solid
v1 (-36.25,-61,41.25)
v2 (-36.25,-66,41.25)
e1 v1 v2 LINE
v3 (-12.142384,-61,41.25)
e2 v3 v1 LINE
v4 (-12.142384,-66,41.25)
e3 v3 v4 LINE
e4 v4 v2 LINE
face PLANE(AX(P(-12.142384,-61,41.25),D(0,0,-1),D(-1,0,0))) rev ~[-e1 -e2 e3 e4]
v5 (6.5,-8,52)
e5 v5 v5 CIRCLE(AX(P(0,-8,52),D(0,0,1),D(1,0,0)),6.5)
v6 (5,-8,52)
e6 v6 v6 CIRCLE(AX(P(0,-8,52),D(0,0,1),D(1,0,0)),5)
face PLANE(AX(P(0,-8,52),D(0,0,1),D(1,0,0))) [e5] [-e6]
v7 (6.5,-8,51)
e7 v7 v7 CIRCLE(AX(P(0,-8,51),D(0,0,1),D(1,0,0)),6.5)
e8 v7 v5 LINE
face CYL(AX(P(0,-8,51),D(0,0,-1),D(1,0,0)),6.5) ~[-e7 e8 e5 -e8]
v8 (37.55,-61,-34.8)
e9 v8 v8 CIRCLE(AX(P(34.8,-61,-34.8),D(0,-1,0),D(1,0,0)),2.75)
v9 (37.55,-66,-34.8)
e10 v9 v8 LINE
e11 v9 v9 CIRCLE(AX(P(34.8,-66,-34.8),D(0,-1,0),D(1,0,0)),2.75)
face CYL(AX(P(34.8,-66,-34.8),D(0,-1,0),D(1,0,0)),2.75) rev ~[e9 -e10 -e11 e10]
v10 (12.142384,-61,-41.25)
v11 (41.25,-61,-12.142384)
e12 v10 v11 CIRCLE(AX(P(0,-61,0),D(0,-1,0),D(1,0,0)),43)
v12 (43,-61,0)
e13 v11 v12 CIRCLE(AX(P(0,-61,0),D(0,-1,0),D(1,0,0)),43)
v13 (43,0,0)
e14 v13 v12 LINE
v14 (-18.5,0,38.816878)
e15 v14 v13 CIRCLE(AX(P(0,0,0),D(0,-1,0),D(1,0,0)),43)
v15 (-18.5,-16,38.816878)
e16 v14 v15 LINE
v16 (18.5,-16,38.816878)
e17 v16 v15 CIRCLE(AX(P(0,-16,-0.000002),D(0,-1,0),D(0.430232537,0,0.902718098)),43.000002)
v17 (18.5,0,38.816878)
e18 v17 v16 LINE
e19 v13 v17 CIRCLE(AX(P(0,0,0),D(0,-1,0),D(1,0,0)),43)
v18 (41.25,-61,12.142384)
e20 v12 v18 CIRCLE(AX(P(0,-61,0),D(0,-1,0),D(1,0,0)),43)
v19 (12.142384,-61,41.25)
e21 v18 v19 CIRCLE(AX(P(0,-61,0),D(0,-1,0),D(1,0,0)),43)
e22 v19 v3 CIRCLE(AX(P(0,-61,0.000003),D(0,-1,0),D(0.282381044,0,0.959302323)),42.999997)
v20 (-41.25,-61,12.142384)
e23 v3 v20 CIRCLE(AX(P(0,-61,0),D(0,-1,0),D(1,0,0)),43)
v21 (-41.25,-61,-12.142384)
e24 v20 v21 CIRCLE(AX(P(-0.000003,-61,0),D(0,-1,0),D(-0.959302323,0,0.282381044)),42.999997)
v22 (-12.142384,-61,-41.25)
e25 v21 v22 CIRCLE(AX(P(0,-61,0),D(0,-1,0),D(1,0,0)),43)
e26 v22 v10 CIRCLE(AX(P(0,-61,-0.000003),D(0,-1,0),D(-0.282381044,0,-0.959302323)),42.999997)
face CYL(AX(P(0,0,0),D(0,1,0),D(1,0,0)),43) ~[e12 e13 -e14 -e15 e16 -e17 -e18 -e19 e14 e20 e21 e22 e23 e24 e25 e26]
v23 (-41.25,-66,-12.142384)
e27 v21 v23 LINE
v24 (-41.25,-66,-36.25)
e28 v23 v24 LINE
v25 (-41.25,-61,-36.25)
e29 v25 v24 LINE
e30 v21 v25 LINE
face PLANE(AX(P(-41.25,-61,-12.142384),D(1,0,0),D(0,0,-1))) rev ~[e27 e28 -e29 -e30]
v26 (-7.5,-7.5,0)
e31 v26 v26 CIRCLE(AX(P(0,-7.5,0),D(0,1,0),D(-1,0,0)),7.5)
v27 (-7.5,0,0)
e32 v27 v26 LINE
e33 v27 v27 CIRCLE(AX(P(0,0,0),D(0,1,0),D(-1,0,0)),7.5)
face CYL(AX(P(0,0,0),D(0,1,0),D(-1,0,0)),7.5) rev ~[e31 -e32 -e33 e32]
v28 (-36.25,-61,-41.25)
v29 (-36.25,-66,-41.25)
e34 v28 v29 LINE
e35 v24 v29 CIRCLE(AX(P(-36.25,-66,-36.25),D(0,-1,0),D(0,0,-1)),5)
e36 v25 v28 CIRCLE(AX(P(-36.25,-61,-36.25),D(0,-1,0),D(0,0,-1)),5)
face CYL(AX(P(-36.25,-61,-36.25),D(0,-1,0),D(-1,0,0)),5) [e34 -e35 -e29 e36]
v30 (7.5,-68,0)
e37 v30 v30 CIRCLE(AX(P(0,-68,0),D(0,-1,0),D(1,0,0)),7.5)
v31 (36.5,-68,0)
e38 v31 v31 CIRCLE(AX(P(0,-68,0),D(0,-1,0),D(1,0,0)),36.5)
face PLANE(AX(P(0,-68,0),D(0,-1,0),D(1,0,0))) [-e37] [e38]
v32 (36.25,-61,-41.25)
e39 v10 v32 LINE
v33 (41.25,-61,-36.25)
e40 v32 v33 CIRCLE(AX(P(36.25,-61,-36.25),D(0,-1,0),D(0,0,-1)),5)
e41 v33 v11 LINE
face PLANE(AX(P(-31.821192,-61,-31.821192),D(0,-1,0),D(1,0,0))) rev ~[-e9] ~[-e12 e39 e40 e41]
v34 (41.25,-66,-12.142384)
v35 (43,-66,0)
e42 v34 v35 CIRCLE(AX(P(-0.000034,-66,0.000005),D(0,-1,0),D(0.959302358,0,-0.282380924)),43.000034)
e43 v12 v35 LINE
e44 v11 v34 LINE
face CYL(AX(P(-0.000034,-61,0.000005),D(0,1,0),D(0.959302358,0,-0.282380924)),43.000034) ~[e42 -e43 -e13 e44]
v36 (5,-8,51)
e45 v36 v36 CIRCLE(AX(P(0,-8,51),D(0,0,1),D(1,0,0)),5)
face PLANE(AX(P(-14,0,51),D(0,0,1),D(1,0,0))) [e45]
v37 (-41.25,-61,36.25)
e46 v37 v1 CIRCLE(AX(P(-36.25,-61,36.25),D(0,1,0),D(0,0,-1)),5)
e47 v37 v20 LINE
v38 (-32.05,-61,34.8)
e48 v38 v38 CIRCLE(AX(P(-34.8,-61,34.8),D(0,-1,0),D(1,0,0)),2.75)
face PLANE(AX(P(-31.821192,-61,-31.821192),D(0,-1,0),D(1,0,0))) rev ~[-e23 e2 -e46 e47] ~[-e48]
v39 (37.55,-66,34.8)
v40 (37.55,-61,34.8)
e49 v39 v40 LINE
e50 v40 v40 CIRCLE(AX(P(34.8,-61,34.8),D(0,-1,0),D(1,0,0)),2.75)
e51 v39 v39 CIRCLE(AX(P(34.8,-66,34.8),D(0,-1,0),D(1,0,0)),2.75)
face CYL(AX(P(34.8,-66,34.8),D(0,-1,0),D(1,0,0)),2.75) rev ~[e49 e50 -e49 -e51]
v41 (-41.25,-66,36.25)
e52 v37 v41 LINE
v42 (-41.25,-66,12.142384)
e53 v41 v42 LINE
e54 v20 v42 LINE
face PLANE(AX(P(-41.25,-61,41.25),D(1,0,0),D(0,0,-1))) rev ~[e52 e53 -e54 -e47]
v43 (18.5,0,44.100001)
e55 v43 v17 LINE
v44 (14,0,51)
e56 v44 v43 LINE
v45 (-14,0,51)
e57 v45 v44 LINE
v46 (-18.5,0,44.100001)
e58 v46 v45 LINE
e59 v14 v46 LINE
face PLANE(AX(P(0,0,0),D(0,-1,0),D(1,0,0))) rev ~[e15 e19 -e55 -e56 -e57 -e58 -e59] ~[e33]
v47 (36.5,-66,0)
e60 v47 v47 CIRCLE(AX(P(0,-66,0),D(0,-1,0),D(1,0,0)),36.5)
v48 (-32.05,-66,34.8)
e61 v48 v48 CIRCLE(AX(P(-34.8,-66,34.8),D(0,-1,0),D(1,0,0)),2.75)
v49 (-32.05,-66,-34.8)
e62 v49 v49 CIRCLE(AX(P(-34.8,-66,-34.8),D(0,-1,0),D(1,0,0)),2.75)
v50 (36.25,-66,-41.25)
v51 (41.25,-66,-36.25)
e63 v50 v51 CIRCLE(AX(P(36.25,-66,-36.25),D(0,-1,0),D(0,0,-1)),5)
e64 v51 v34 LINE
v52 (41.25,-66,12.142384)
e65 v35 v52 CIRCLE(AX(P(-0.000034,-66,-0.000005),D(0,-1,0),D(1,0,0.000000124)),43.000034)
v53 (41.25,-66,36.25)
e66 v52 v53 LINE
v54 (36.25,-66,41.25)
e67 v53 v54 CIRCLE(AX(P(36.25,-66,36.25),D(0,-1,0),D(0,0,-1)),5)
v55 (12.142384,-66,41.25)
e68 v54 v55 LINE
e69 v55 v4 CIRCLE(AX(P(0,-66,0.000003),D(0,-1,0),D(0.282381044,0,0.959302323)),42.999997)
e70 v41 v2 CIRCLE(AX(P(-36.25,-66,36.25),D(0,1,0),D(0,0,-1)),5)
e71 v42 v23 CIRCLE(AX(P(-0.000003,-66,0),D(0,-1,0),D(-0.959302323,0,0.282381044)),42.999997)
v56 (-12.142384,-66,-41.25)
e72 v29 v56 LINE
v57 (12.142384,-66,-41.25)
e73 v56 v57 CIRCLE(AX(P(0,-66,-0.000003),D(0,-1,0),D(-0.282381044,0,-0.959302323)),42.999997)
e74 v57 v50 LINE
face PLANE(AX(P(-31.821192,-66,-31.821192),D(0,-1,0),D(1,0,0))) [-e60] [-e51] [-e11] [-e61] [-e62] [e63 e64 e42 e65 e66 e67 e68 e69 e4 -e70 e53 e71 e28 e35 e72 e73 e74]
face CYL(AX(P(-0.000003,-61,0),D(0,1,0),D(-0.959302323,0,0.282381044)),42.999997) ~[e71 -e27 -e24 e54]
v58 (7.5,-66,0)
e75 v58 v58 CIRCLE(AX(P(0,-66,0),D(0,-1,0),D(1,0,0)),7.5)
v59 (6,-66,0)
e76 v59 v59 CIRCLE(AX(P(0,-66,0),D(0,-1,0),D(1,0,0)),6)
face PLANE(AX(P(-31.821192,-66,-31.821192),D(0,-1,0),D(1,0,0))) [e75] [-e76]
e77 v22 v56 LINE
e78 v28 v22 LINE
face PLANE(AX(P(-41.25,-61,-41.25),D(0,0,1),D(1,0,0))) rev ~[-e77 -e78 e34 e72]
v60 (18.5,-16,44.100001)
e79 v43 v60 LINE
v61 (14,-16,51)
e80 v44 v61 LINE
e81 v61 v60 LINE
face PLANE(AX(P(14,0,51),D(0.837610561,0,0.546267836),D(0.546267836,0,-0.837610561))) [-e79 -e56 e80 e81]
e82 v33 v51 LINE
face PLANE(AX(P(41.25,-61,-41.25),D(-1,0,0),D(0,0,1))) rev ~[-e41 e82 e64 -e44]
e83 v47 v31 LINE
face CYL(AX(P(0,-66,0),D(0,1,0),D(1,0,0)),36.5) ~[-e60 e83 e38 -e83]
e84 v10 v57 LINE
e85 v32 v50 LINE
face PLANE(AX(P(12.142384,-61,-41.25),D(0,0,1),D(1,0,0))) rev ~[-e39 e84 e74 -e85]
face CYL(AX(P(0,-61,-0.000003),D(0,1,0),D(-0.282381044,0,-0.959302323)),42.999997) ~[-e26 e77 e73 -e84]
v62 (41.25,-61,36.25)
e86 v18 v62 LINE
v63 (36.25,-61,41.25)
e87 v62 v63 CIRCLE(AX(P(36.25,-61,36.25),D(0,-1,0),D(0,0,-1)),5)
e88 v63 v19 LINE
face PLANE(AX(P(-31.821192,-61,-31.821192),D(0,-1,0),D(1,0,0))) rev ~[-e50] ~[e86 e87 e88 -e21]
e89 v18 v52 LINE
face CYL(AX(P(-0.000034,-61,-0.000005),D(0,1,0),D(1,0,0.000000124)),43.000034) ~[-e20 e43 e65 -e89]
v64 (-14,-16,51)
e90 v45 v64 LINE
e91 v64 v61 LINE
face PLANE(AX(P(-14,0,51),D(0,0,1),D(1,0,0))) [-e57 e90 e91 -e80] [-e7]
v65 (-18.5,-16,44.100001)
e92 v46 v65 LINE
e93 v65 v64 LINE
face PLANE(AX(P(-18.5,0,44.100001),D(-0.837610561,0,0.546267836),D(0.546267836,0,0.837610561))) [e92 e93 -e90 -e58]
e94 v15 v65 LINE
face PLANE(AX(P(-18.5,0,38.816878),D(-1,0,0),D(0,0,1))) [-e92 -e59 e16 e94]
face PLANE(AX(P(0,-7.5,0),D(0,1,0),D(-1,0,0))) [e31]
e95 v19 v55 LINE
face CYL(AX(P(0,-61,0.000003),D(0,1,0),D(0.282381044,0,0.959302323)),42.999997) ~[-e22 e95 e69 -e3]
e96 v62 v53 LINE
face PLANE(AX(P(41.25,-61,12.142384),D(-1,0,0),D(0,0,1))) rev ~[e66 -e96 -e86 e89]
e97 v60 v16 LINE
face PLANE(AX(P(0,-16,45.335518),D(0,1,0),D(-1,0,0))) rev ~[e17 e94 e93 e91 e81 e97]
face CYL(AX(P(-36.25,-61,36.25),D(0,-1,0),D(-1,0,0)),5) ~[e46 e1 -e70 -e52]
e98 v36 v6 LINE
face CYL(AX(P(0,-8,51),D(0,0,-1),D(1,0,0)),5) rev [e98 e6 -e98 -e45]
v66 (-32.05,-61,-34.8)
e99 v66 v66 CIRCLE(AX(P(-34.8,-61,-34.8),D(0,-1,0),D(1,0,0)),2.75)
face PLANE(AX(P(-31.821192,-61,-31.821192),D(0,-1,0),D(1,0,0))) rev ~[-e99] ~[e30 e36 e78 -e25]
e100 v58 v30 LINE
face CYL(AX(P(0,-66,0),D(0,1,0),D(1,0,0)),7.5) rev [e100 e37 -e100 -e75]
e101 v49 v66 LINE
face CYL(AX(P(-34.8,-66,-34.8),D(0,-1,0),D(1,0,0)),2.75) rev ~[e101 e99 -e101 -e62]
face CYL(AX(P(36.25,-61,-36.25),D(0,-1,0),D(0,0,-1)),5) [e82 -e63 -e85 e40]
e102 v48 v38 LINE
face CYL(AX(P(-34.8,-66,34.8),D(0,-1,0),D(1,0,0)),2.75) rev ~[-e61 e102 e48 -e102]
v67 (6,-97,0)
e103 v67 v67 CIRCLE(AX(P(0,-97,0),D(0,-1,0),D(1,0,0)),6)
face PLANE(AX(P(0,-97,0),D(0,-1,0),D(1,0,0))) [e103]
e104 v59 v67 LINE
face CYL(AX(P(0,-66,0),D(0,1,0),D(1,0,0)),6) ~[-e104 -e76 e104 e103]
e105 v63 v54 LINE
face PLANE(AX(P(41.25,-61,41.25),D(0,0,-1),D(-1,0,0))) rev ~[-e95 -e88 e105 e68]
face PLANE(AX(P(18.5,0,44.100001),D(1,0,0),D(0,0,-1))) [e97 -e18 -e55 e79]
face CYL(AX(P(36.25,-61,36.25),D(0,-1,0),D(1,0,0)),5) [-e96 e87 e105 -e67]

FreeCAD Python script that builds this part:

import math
import FreeCAD as App
import Part
import Sketcher
Q = App.Units.Quantity


def edges_at(feature, points):
    """Names of the edges that pass closest to the given points."""
    edges = feature.Shape.Edges
    near = lambda p: min(range(len(edges)), key=lambda i: edges[i].distToShape(Part.Vertex(*p))[0])
    return sorted({f"Edge{near(p) + 1}" for p in points})

doc = App.newDocument("Part")
body = doc.addObject("PartDesign::Body", "Body")

sketch1 = body.newObject("Sketcher::SketchObject", "Sketch")
sketch1.AttachmentSupport = (doc.getObject("XZ_Plane"), [""])
sketch1.MapMode = "FlatFace"
sketch1.addGeometry(Part.Circle(App.Vector(0, 0, 0), App.Vector(0, 0, 1), 43), False)
sketch1.addConstraint(Sketcher.Constraint("Coincident", 0, 3, -1, 1))
sketch1.addConstraint(Sketcher.Constraint("Diameter", 0, Q("86 mm")))
pad1 = body.newObject("PartDesign::Pad", "Pad")
pad1.Profile = sketch1
pad1.Length = 61

sketch2 = body.newObject("Sketcher::SketchObject", "Sketch001")
sketch2.AttachmentSupport = (doc.getObject("XZ_Plane"), [""])
sketch2.MapMode = "FlatFace"
sketch2.addGeometry(Part.Circle(App.Vector(0, 0, 0), App.Vector(0, 0, 1), 8), False)
sketch2.addConstraint(Sketcher.Constraint("Coincident", 0, 3, -1, 1))
sketch2.addConstraint(Sketcher.Constraint("Diameter", 0, Q("15 mm")))
pocket1 = body.newObject("PartDesign::Pocket", "Pocket")
pocket1.Profile = sketch2
pocket1.Length = 7.5
pocket1.Reversed = True

sketch3 = body.newObject("Sketcher::SketchObject", "Sketch002")
sketch3.AttachmentSupport = (doc.getObject("XZ_Plane"), [""])
sketch3.MapMode = "FlatFace"
sketch3.AttachmentOffset = App.Placement(App.Vector(0, 0, 61), App.Rotation())
sketch3.addGeometry(Part.LineSegment(App.Vector(-41.25, -12.142384, 0), App.Vector(-41.25, -41.25, 0)), False)
sketch3.addGeometry(Part.LineSegment(App.Vector(-41.25, -41.25, 0), App.Vector(-12.142384, -41.25, 0)), False)
sketch3.addGeometry(Part.ArcOfCircle(Part.Circle(App.Vector(0, -0.000003, 0), App.Vector(0, 0, 1), 42.999997), math.radians(-106.402364), math.radians(-73.597636)), False)
sketch3.addGeometry(Part.LineSegment(App.Vector(12.142384, -41.25, 0), App.Vector(41.25, -41.25, 0)), False)
sketch3.addGeometry(Part.LineSegment(App.Vector(41.25, -41.25, 0), App.Vector(41.25, -12.142384, 0)), False)
sketch3.addGeometry(Part.ArcOfCircle(Part.Circle(App.Vector(-0.000034, 0.000005, 0), App.Vector(0, 0, 1), 43.000034), math.radians(-16.402357), math.radians(-0.000007)), False)
sketch3.addGeometry(Part.ArcOfCircle(Part.Circle(App.Vector(-0.000034, -0.000005, 0), App.Vector(0, 0, 1), 43.000034), math.radians(0.000007), math.radians(16.402357)), False)
sketch3.addGeometry(Part.LineSegment(App.Vector(41.25, 12.142384, 0), App.Vector(41.25, 41.25, 0)), False)
sketch3.addGeometry(Part.LineSegment(App.Vector(41.25, 41.25, 0), App.Vector(12.142384, 41.25, 0)), False)
sketch3.addGeometry(Part.ArcOfCircle(Part.Circle(App.Vector(0, 0.000003, 0), App.Vector(0, 0, 1), 42.999997), math.radians(73.597636), math.radians(106.402364)), False)
sketch3.addGeometry(Part.LineSegment(App.Vector(-12.142384, 41.25, 0), App.Vector(-41.25, 41.25, 0)), False)
sketch3.addGeometry(Part.LineSegment(App.Vector(-41.25, 41.25, 0), App.Vector(-41.25, 12.142384, 0)), False)
sketch3.addGeometry(Part.ArcOfCircle(Part.Circle(App.Vector(-0.000003, 0, 0), App.Vector(0, 0, 1), 42.999997), math.radians(163.597636), math.radians(196.402364)), False)
sketch3.addConstraint(Sketcher.Constraint("Coincident", 0, 2, 1, 1))
sketch3.addConstraint(Sketcher.Constraint("Coincident", 1, 2, 2, 1))
sketch3.addConstraint(Sketcher.Constraint("Coincident", 2, 2, 3, 1))
sketch3.addConstraint(Sketcher.Constraint("Coincident", 3, 2, 4, 1))
sketch3.addConstraint(Sketcher.Constraint("Coincident", 4, 2, 5, 1))
sketch3.addConstraint(Sketcher.Constraint("Coincident", 5, 2, 6, 1))
sketch3.addConstraint(Sketcher.Constraint("Coincident", 6, 2, 7, 1))
sketch3.addConstraint(Sketcher.Constraint("Coincident", 7, 2, 8, 1))
sketch3.addConstraint(Sketcher.Constraint("Coincident", 8, 2, 9, 1))
sketch3.addConstraint(Sketcher.Constraint("Coincident", 9, 2, 10, 1))
sketch3.addConstraint(Sketcher.Constraint("Coincident", 10, 2, 11, 1))
sketch3.addConstraint(Sketcher.Constraint("Coincident", 11, 2, 12, 1))
sketch3.addConstraint(Sketcher.Constraint("Coincident", 12, 2, 0, 1))
sketch3.addConstraint(Sketcher.Constraint("Vertical", 0))
sketch3.addConstraint(Sketcher.Constraint("Horizontal", 1))
sketch3.addConstraint(Sketcher.Constraint("Horizontal", 3))
sketch3.addConstraint(Sketcher.Constraint("Vertical", 4))
sketch3.addConstraint(Sketcher.Constraint("Vertical", 7))
sketch3.addConstraint(Sketcher.Constraint("Horizontal", 8))
sketch3.addConstraint(Sketcher.Constraint("Horizontal", 10))
sketch3.addConstraint(Sketcher.Constraint("Vertical", 11))
sketch3.addConstraint(Sketcher.Constraint("Coincident", 2, 3, -1, 1))
sketch3.addConstraint(Sketcher.Constraint("Coincident", 9, 3, -1, 1))
sketch3.addConstraint(Sketcher.Constraint("Coincident", 12, 3, -1, 1))
sketch3.addConstraint(Sketcher.Constraint("PointOnObject", 5, 2, -1))
sketch3.addConstraint(Sketcher.Constraint("DistanceX", -1, 1, 5, 2, Q("43 mm")))
sketch3.addConstraint(Sketcher.Constraint("DistanceX", 0, 2, -1, 1, Q("41.25 mm")))
sketch3.addConstraint(Sketcher.Constraint("DistanceY", 0, 2, -1, 1, Q("41.25 mm")))
sketch3.addConstraint(Sketcher.Constraint("DistanceY", 2, 2, -1, 1, Q("41.25 mm")))
sketch3.addConstraint(Sketcher.Constraint("DistanceX", -1, 1, 3, 2, Q("41.25 mm")))
sketch3.addConstraint(Sketcher.Constraint("DistanceX", -1, 1, 6, 2, Q("41.25 mm")))
sketch3.addConstraint(Sketcher.Constraint("DistanceY", -1, 1, 7, 2, Q("41.25 mm")))
sketch3.addConstraint(Sketcher.Constraint("DistanceY", -1, 1, 9, 2, Q("41.25 mm")))
sketch3.addConstraint(Sketcher.Constraint("DistanceX", 10, 2, -1, 1, Q("41.25 mm")))
sketch3.addConstraint(Sketcher.Constraint("Radius", 2, Q("42.999997 mm")))
sketch3.addConstraint(Sketcher.Constraint("Radius", 5, Q("43.000034 mm")))
sketch3.addConstraint(Sketcher.Constraint("Radius", 6, Q("43.000034 mm")))
sketch3.addConstraint(Sketcher.Constraint("Radius", 9, Q("42.999997 mm")))
sketch3.addConstraint(Sketcher.Constraint("Radius", 12, Q("42.999997 mm")))
sketch3.addConstraint(Sketcher.Constraint("DistanceY", 4, 1, 4, 2, Q("29.107616 mm")))
sketch3.addConstraint(Sketcher.Constraint("DistanceY", 7, 1, 7, 2, Q("29.107616 mm")))
pad2 = body.newObject("PartDesign::Pad", "Pad001")
pad2.Profile = sketch3
pad2.Length = 5
doc.recompute()

fillet = body.newObject("PartDesign::Fillet", "Fillet")
fillet.Base = (pad2, edges_at(pad2, [
    (41.25, -63.5, -41.25),
    (-41.25, -63.5, -41.25),
    (-41.25, -63.5, 41.25),
    (41.25, -63.5, 41.25),
]))
fillet.Radius = 5

sketch4 = body.newObject("Sketcher::SketchObject", "Sketch003")
sketch4.AttachmentSupport = (doc.getObject("XZ_Plane"), [""])
sketch4.MapMode = "FlatFace"
sketch4.AttachmentOffset = App.Placement(App.Vector(0, 0, 66), App.Rotation())
sketch4.addGeometry(Part.Circle(App.Vector(-34.8, 34.8, 0), App.Vector(0, 0, 1), 2.8), False)
sketch4.addGeometry(Part.Circle(App.Vector(34.8, 34.8, 0), App.Vector(0, 0, 1), 2.8), False)
sketch4.addGeometry(Part.Circle(App.Vector(34.8, -34.8, 0), App.Vector(0, 0, 1), 2.8), False)
sketch4.addGeometry(Part.Circle(App.Vector(-34.8, -34.8, 0), App.Vector(0, 0, 1), 2.8), False)
sketch4.addConstraint(Sketcher.Constraint("Equal", 0, 1))
sketch4.addConstraint(Sketcher.Constraint("Equal", 1, 2))
sketch4.addConstraint(Sketcher.Constraint("Equal", 2, 3))
sketch4.addConstraint(Sketcher.Constraint("Symmetric", 0, 3, 2, 3, -1, 1))
sketch4.addConstraint(Sketcher.Constraint("Symmetric", 1, 3, 3, 3, -1, 1))
sketch4.addConstraint(Sketcher.Constraint("Symmetric", 0, 3, 1, 3, -2))
sketch4.addConstraint(Sketcher.Constraint("Diameter", 0, Q("5.5 mm")))
sketch4.addConstraint(Sketcher.Constraint("DistanceX", 0, 3, -1, 1, Q("34.8 mm")))
sketch4.addConstraint(Sketcher.Constraint("DistanceY", -1, 1, 0, 3, Q("34.8 mm")))
pocket2 = body.newObject("PartDesign::Pocket", "Pocket001")
pocket2.Profile = sketch4
pocket2.Type = "ThroughAll"

sketch5 = body.newObject("Sketcher::SketchObject", "Sketch004")
sketch5.AttachmentSupport = (doc.getObject("XZ_Plane"), [""])
sketch5.MapMode = "FlatFace"
sketch5.AttachmentOffset = App.Placement(App.Vector(0, 0, 66), App.Rotation())
sketch5.addGeometry(Part.Circle(App.Vector(0, 0, 0), App.Vector(0, 0, 1), 36), False)
sketch5.addGeometry(Part.Circle(App.Vector(0, 0, 0), App.Vector(0, 0, 1), 8), False)
sketch5.addConstraint(Sketcher.Constraint("Coincident", 0, 3, -1, 1))
sketch5.addConstraint(Sketcher.Constraint("Coincident", 1, 3, -1, 1))
sketch5.addConstraint(Sketcher.Constraint("Diameter", 0, Q("73 mm")))
sketch5.addConstraint(Sketcher.Constraint("Diameter", 1, Q("15 mm")))
pad3 = body.newObject("PartDesign::Pad", "Pad002")
pad3.Profile = sketch5
pad3.Length = 2

sketch6 = body.newObject("Sketcher::SketchObject", "Sketch005")
sketch6.AttachmentSupport = (doc.getObject("XZ_Plane"), [""])
sketch6.MapMode = "FlatFace"
sketch6.AttachmentOffset = App.Placement(App.Vector(0, 0, 66), App.Rotation())
sketch6.addGeometry(Part.Circle(App.Vector(0, 0, 0), App.Vector(0, 0, 1), 6), False)
sketch6.addConstraint(Sketcher.Constraint("Coincident", 0, 3, -1, 1))
sketch6.addConstraint(Sketcher.Constraint("Diameter", 0, Q("12 mm")))
pad4 = body.newObject("PartDesign::Pad", "Pad003")
pad4.Profile = sketch6
pad4.Length = 31

sketch7 = body.newObject("Sketcher::SketchObject", "Sketch006")
sketch7.AttachmentSupport = (doc.getObject("XZ_Plane"), [""])
sketch7.MapMode = "FlatFace"
sketch7.addGeometry(Part.LineSegment(App.Vector(18, 44, 0), App.Vector(18, 39, 0)), False)
sketch7.addGeometry(Part.ArcOfCircle(Part.Circle(App.Vector(0, 0, 0), App.Vector(0, 0, 1), 43), math.radians(65), math.radians(115)), False)
sketch7.addGeometry(Part.LineSegment(App.Vector(-18, 39, 0), App.Vector(-18, 44, 0)), False)
sketch7.addGeometry(Part.LineSegment(App.Vector(-18, 44, 0), App.Vector(-14, 51, 0)), False)
sketch7.addGeometry(Part.LineSegment(App.Vector(-14, 51, 0), App.Vector(14, 51, 0)), False)
sketch7.addGeometry(Part.LineSegment(App.Vector(14, 51, 0), App.Vector(18, 44, 0)), False)
sketch7.addConstraint(Sketcher.Constraint("Coincident", 0, 2, 1, 1))
sketch7.addConstraint(Sketcher.Constraint("Coincident", 1, 2, 2, 1))
sketch7.addConstraint(Sketcher.Constraint("Coincident", 2, 2, 3, 1))
sketch7.addConstraint(Sketcher.Constraint("Coincident", 3, 2, 4, 1))
sketch7.addConstraint(Sketcher.Constraint("Coincident", 4, 2, 5, 1))
sketch7.addConstraint(Sketcher.Constraint("Coincident", 5, 2, 0, 1))
sketch7.addConstraint(Sketcher.Constraint("Vertical", 0))
sketch7.addConstraint(Sketcher.Constraint("Vertical", 2))
sketch7.addConstraint(Sketcher.Constraint("Horizontal", 4))
sketch7.addConstraint(Sketcher.Constraint("Coincident", 1, 3, -1, 1))
sketch7.addConstraint(Sketcher.Constraint("Symmetric", 2, 2, 5, 2, -2))
sketch7.addConstraint(Sketcher.Constraint("Equal", 3, 5))
sketch7.addConstraint(Sketcher.Constraint("DistanceX", 4, 1, 4, 2, Q("28 mm")))
sketch7.addConstraint(Sketcher.Constraint("DistanceY", -1, 1, 3, 2, Q("51 mm")))
sketch7.addConstraint(Sketcher.Constraint("DistanceX", 1, 2, 0, 2, Q("37 mm")))
sketch7.addConstraint(Sketcher.Constraint("DistanceY", -1, 1, 2, 2, Q("44.100001 mm")))
sketch7.addConstraint(Sketcher.Constraint("Radius", 1, Q("43.000002 mm")))
pad5 = body.newObject("PartDesign::Pad", "Pad004")
pad5.Profile = sketch7
pad5.Length = 16

sketch8 = body.newObject("Sketcher::SketchObject", "Sketch007")
sketch8.AttachmentSupport = (doc.getObject("XY_Plane"), [""])
sketch8.MapMode = "FlatFace"
sketch8.AttachmentOffset = App.Placement(App.Vector(0, 0, 51), App.Rotation())
sketch8.addGeometry(Part.Circle(App.Vector(0, -8, 0), App.Vector(0, 0, 1), 6), False)
sketch8.addGeometry(Part.Circle(App.Vector(0, -8, 0), App.Vector(0, 0, 1), 5), False)
sketch8.addConstraint(Sketcher.Constraint("Coincident", 1, 3, 0, 3))
sketch8.addConstraint(Sketcher.Constraint("PointOnObject", 0, 3, -2))
sketch8.addConstraint(Sketcher.Constraint("Diameter", 0, Q("13 mm")))
sketch8.addConstraint(Sketcher.Constraint("Diameter", 1, Q("10 mm")))
sketch8.addConstraint(Sketcher.Constraint("DistanceY", 0, 3, -1, 1, Q("8 mm")))
pad6 = body.newObject("PartDesign::Pad", "Pad005")
pad6.Profile = sketch8
pad6.Length = 1

doc.recompute()
